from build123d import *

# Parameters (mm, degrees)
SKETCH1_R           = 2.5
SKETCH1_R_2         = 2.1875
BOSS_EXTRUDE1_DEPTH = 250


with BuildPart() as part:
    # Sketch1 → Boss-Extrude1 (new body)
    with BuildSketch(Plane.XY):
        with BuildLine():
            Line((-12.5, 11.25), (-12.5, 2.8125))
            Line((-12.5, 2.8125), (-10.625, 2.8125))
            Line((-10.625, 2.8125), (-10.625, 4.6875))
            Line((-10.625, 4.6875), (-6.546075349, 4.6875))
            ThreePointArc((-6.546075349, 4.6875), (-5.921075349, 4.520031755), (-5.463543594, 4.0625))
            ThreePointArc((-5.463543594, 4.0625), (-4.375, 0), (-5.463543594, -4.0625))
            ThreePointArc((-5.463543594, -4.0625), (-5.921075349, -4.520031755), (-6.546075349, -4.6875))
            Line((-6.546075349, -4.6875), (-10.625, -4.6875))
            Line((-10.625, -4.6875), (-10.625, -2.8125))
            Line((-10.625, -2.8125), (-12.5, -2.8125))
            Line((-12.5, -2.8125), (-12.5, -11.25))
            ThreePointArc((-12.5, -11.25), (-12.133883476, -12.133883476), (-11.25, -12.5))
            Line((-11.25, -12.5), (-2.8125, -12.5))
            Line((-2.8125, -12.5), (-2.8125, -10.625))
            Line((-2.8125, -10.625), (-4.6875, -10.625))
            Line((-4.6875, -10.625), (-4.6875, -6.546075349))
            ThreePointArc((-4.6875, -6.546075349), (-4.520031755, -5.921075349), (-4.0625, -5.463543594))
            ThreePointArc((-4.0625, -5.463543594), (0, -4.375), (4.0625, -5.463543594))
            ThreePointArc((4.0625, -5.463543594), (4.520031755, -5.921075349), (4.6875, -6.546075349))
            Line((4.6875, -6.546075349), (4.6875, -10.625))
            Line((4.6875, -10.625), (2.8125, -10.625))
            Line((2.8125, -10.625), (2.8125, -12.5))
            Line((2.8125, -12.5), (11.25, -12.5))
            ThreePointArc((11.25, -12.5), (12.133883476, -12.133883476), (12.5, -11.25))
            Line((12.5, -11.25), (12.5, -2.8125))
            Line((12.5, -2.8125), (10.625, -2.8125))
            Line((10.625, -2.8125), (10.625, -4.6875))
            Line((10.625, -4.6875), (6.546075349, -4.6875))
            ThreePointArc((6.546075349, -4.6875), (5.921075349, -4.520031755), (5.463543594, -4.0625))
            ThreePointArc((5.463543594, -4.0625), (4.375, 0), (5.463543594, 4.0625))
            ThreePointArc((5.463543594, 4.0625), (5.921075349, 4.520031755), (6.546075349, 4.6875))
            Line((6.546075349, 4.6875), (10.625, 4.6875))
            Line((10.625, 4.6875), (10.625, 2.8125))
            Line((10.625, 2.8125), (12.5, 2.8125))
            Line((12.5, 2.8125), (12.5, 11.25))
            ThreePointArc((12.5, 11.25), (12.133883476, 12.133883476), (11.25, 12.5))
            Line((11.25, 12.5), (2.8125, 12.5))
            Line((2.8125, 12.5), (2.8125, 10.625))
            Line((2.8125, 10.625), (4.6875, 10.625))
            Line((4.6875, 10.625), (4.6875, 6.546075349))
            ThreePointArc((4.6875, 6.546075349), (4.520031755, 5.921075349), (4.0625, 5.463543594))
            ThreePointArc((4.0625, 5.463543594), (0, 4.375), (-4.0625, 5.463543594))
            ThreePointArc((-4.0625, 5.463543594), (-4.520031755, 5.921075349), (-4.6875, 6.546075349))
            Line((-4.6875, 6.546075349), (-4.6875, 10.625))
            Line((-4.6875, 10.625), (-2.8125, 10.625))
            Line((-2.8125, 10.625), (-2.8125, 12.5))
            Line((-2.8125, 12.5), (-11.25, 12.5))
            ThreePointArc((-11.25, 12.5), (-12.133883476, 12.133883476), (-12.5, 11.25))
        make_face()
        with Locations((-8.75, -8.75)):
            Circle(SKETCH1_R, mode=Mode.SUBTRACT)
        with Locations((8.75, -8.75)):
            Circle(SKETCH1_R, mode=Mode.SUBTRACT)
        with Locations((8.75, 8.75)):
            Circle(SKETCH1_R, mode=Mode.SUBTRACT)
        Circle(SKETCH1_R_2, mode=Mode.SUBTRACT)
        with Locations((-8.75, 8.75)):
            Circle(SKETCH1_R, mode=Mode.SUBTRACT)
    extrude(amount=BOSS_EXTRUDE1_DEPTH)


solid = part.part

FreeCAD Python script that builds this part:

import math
import FreeCAD as App
import Part
import Sketcher
Q = App.Units.Quantity

doc = App.newDocument("Part")
body = doc.addObject("PartDesign::Body", "Body")

sketch1 = body.newObject("Sketcher::SketchObject", "Sketch")
sketch1.AttachmentSupport = (doc.getObject("XY_Plane"), [""])
sketch1.MapMode = "FlatFace"
sketch1.addGeometry([
    Part.LineSegment(App.Vector(-12.5, 11.2, 0), App.Vector(-12.5, 2.8, 0)),
    Part.LineSegment(App.Vector(-12.5, 2.8, 0), App.Vector(-10.6, 2.8, 0)),
    Part.LineSegment(App.Vector(-10.6, 2.8, 0), App.Vector(-10.6, 4.7, 0)),
    Part.LineSegment(App.Vector(-10.6, 4.7, 0), App.Vector(-6.5, 4.7, 0)),
    Part.ArcOfCircle(Part.Circle(App.Vector(-6.5, 3.4, 0), App.Vector(0, 0, 1), 1.2), math.radians(30), math.radians(90)),
    Part.ArcOfCircle(Part.Circle(App.Vector(-12.5, 0, 0), App.Vector(0, 0, 1), 8.1), math.radians(-30), math.radians(30)),
    Part.ArcOfCircle(Part.Circle(App.Vector(-6.5, -3.4, 0), App.Vector(0, 0, 1), 1.2), math.radians(-90), math.radians(-30)),
    Part.LineSegment(App.Vector(-6.5, -4.7, 0), App.Vector(-10.6, -4.7, 0)),
    Part.LineSegment(App.Vector(-10.6, -4.7, 0), App.Vector(-10.6, -2.8, 0)),
    Part.LineSegment(App.Vector(-10.6, -2.8, 0), App.Vector(-12.5, -2.8, 0)),
    Part.LineSegment(App.Vector(-12.5, -2.8, 0), App.Vector(-12.5, -11.2, 0)),
    Part.ArcOfCircle(Part.Circle(App.Vector(-11.2, -11.2, 0), App.Vector(0, 0, 1), 1.3), math.radians(-180), math.radians(-90)),
    Part.LineSegment(App.Vector(-11.2, -12.5, 0), App.Vector(-2.8, -12.5, 0)),
    Part.LineSegment(App.Vector(-2.8, -12.5, 0), App.Vector(-2.8, -10.6, 0)),
    Part.LineSegment(App.Vector(-2.8, -10.6, 0), App.Vector(-4.7, -10.6, 0)),
    Part.LineSegment(App.Vector(-4.7, -10.6, 0), App.Vector(-4.7, -6.5, 0)),
    Part.ArcOfCircle(Part.Circle(App.Vector(-3.4, -6.5, 0), App.Vector(0, 0, 1), 1.2), math.radians(120), math.radians(180)),
    Part.ArcOfCircle(Part.Circle(App.Vector(0, -12.5, 0), App.Vector(0, 0, 1), 8.1), math.radians(60), math.radians(120)),
    Part.ArcOfCircle(Part.Circle(App.Vector(3.4, -6.5, 0), App.Vector(0, 0, 1), 1.2), math.radians(0), math.radians(60)),
    Part.LineSegment(App.Vector(4.7, -6.5, 0), App.Vector(4.7, -10.6, 0)),
    Part.LineSegment(App.Vector(4.7, -10.6, 0), App.Vector(2.8, -10.6, 0)),
    Part.LineSegment(App.Vector(2.8, -10.6, 0), App.Vector(2.8, -12.5, 0)),
    Part.LineSegment(App.Vector(2.8, -12.5, 0), App.Vector(11.2, -12.5, 0)),
    Part.ArcOfCircle(Part.Circle(App.Vector(11.2, -11.2, 0), App.Vector(0, 0, 1), 1.3), math.radians(-90), math.radians(0)),
    Part.LineSegment(App.Vector(12.5, -11.2, 0), App.Vector(12.5, -2.8, 0)),
    Part.LineSegment(App.Vector(12.5, -2.8, 0), App.Vector(10.6, -2.8, 0)),
    Part.LineSegment(App.Vector(10.6, -2.8, 0), App.Vector(10.6, -4.7, 0)),
    Part.LineSegment(App.Vector(10.6, -4.7, 0), App.Vector(6.5, -4.7, 0)),
    Part.ArcOfCircle(Part.Circle(App.Vector(6.5, -3.4, 0), App.Vector(0, 0, 1), 1.2), math.radians(-150), math.radians(-90)),
    Part.ArcOfCircle(Part.Circle(App.Vector(12.5, 0, 0), App.Vector(0, 0, 1), 8.1), math.radians(150), math.radians(210)),
    Part.ArcOfCircle(Part.Circle(App.Vector(6.5, 3.4, 0), App.Vector(0, 0, 1), 1.2), math.radians(90), math.radians(150)),
    Part.LineSegment(App.Vector(6.5, 4.7, 0), App.Vector(10.6, 4.7, 0)),
    Part.LineSegment(App.Vector(10.6, 4.7, 0), App.Vector(10.6, 2.8, 0)),
    Part.LineSegment(App.Vector(10.6, 2.8, 0), App.Vector(12.5, 2.8, 0)),
    Part.LineSegment(App.Vector(12.5, 2.8, 0), App.Vector(12.5, 11.2, 0)),
    Part.ArcOfCircle(Part.Circle(App.Vector(11.2, 11.2, 0), App.Vector(0, 0, 1), 1.3), math.radians(0), math.radians(90)),
    Part.LineSegment(App.Vector(11.2, 12.5, 0), App.Vector(2.8, 12.5, 0)),
    Part.LineSegment(App.Vector(2.8, 12.5, 0), App.Vector(2.8, 10.6, 0)),
    Part.LineSegment(App.Vector(2.8, 10.6, 0), App.Vector(4.7, 10.6, 0)),
    Part.LineSegment(App.Vector(4.7, 10.6, 0), App.Vector(4.7, 6.5, 0)),
    Part.ArcOfCircle(Part.Circle(App.Vector(3.4, 6.5, 0), App.Vector(0, 0, 1), 1.2), math.radians(-60), math.radians(0)),
    Part.ArcOfCircle(Part.Circle(App.Vector(0, 12.5, 0), App.Vector(0, 0, 1), 8.1), math.radians(-120), math.radians(-60)),
    Part.ArcOfCircle(Part.Circle(App.Vector(-3.4, 6.5, 0), App.Vector(0, 0, 1), 1.2), math.radians(180), math.radians(240)),
    Part.LineSegment(App.Vector(-4.7, 6.5, 0), App.Vector(-4.7, 10.6, 0)),
    Part.LineSegment(App.Vector(-4.7, 10.6, 0), App.Vector(-2.8, 10.6, 0)),
    Part.LineSegment(App.Vector(-2.8, 10.6, 0), App.Vector(-2.8, 12.5, 0)),
    Part.LineSegment(App.Vector(-2.8, 12.5, 0), App.Vector(-11.2, 12.5, 0)),
    Part.ArcOfCircle(Part.Circle(App.Vector(-11.2, 11.2, 0), App.Vector(0, 0, 1), 1.3), math.radians(90), math.radians(180)),
    Part.Circle(App.Vector(-8.8, -8.8, 0), App.Vector(0, 0, 1), 2.5),
    Part.Circle(App.Vector(8.8, -8.8, 0), App.Vector(0, 0, 1), 2.5),
    Part.Circle(App.Vector(-8.8, 8.8, 0), App.Vector(0, 0, 1), 2.5),
    Part.Circle(App.Vector(0, 0, 0), App.Vector(0, 0, 1), 2.2),
    Part.Circle(App.Vector(8.8, 8.8, 0), App.Vector(0, 0, 1), 2.5),
], False)
sketch1.addConstraint([
    Sketcher.Constraint("Coincident", 0, 2, 1, 1),
    Sketcher.Constraint("Coincident", 1, 2, 2, 1),
    Sketcher.Constraint("Coincident", 2, 2, 3, 1),
    Sketcher.Constraint("Tangent", 3, 2, 4, 2),
    Sketcher.Constraint("Tangent", 4, 1, 5, 2),
    Sketcher.Constraint("Tangent", 5, 1, 6, 2),
    Sketcher.Constraint("Tangent", 6, 1, 7, 1),
    Sketcher.Constraint("Coincident", 7, 2, 8, 1),
    Sketcher.Constraint("Coincident", 8, 2, 9, 1),
    Sketcher.Constraint("Coincident", 9, 2, 10, 1),
    Sketcher.Constraint("Tangent", 10, 2, 11, 1),
    Sketcher.Constraint("Tangent", 11, 2, 12, 1),
    Sketcher.Constraint("Coincident", 12, 2, 13, 1),
    Sketcher.Constraint("Coincident", 13, 2, 14, 1),
    Sketcher.Constraint("Coincident", 14, 2, 15, 1),
    Sketcher.Constraint("Tangent", 15, 2, 16, 2),
    Sketcher.Constraint("Tangent", 16, 1, 17, 2),
    Sketcher.Constraint("Tangent", 17, 1, 18, 2),
    Sketcher.Constraint("Tangent", 18, 1, 19, 1),
    Sketcher.Constraint("Coincident", 19, 2, 20, 1),
    Sketcher.Constraint("Coincident", 20, 2, 21, 1),
    Sketcher.Constraint("Coincident", 21, 2, 22, 1),
    Sketcher.Constraint("Tangent", 22, 2, 23, 1),
    Sketcher.Constraint("Tangent", 23, 2, 24, 1),
    Sketcher.Constraint("Coincident", 24, 2, 25, 1),
    Sketcher.Constraint("Coincident", 25, 2, 26, 1),
    Sketcher.Constraint("Coincident", 26, 2, 27, 1),
    Sketcher.Constraint("Tangent", 27, 2, 28, 2),
    Sketcher.Constraint("Tangent", 28, 1, 29, 2),
    Sketcher.Constraint("Tangent", 29, 1, 30, 2),
    Sketcher.Constraint("Tangent", 30, 1, 31, 1),
    Sketcher.Constraint("Coincident", 31, 2, 32, 1),
    Sketcher.Constraint("Coincident", 32, 2, 33, 1),
    Sketcher.Constraint("Coincident", 33, 2, 34, 1),
    Sketcher.Constraint("Tangent", 34, 2, 35, 1),
    Sketcher.Constraint("Tangent", 35, 2, 36, 1),
    Sketcher.Constraint("Coincident", 36, 2, 37, 1),
    Sketcher.Constraint("Coincident", 37, 2, 38, 1),
    Sketcher.Constraint("Coincident", 38, 2, 39, 1),
    Sketcher.Constraint("Tangent", 39, 2, 40, 2),
    Sketcher.Constraint("Tangent", 40, 1, 41, 2),
    Sketcher.Constraint("Tangent", 41, 1, 42, 2),
    Sketcher.Constraint("Tangent", 42, 1, 43, 1),
    Sketcher.Constraint("Coincident", 43, 2, 44, 1),
    Sketcher.Constraint("Coincident", 44, 2, 45, 1),
    Sketcher.Constraint("Coincident", 45, 2, 46, 1),
    Sketcher.Constraint("Tangent", 46, 2, 47, 1),
    Sketcher.Constraint("Tangent", 47, 2, 0, 1),
    Sketcher.Constraint("Vertical", 0),
    Sketcher.Constraint("Horizontal", 1),
    Sketcher.Constraint("Vertical", 2),
    Sketcher.Constraint("Horizontal", 3),
    Sketcher.Constraint("Horizontal", 7),
    Sketcher.Constraint("Vertical", 8),
    Sketcher.Constraint("Horizontal", 9),
    Sketcher.Constraint("Vertical", 10),
    Sketcher.Constraint("Horizontal", 12),
    Sketcher.Constraint("Vertical", 13),
    Sketcher.Constraint("Horizontal", 14),
    Sketcher.Constraint("Vertical", 15),
    Sketcher.Constraint("Vertical", 19),
    Sketcher.Constraint("Horizontal", 20),
    Sketcher.Constraint("Vertical", 21),
    Sketcher.Constraint("Horizontal", 22),
    Sketcher.Constraint("Vertical", 24),
    Sketcher.Constraint("Horizontal", 25),
    Sketcher.Constraint("Vertical", 26),
    Sketcher.Constraint("Horizontal", 27),
    Sketcher.Constraint("Horizontal", 31),
    Sketcher.Constraint("Vertical", 32),
    Sketcher.Constraint("Horizontal", 33),
    Sketcher.Constraint("Vertical", 34),
    Sketcher.Constraint("Horizontal", 36),
    Sketcher.Constraint("Vertical", 37),
    Sketcher.Constraint("Horizontal", 38),
    Sketcher.Constraint("Vertical", 39),
    Sketcher.Constraint("Vertical", 43),
    Sketcher.Constraint("Horizontal", 44),
    Sketcher.Constraint("Vertical", 45),
    Sketcher.Constraint("Horizontal", 46),
    Sketcher.Constraint("Coincident", 51, 3, -1, 1),
    Sketcher.Constraint("Equal", 4, 6),
    Sketcher.Constraint("Equal", 6, 11),
    Sketcher.Constraint("Equal", 11, 16),
    Sketcher.Constraint("Equal", 5, 17),
    Sketcher.Constraint("Equal", 16, 18),
    Sketcher.Constraint("Equal", 18, 23),
    Sketcher.Constraint("Equal", 23, 28),
    Sketcher.Constraint("Equal", 17, 29),
    Sketcher.Constraint("Equal", 28, 30),
    Sketcher.Constraint("Equal", 30, 35),
    Sketcher.Constraint("Equal", 35, 40),
    Sketcher.Constraint("Equal", 29, 41),
    Sketcher.Constraint("Equal", 40, 42),
    Sketcher.Constraint("Equal", 42, 47),
    Sketcher.Constraint("Equal", 48, 49),
    Sketcher.Constraint("Equal", 49, 50),
    Sketcher.Constraint("Equal", 50, 52),
    Sketcher.Constraint("Symmetric", 4, 3, 28, 3, -1, 1),
    Sketcher.Constraint("Symmetric", 6, 3, 30, 3, -1, 1),
    Sketcher.Constraint("Symmetric", 11, 3, 35, 3, -1, 1),
    Sketcher.Constraint("Symmetric", 16, 3, 40, 3, -1, 1),
    Sketcher.Constraint("Symmetric", 18, 3, 42, 3, -1, 1),
    Sketcher.Constraint("Symmetric", 23, 3, 47, 3, -1, 1),
    Sketcher.Constraint("Symmetric", 49, 3, 50, 3, -1, 1),
    Sketcher.Constraint("Symmetric", 48, 3, 52, 3, -1, 1),
    Sketcher.Constraint("Symmetric", 1, 2, 25, 2, -1, 1),
    Sketcher.Constraint("Symmetric", 8, 2, 32, 2, -1, 1),
    Sketcher.Constraint("Symmetric", 13, 2, 37, 2, -1, 1),
    Sketcher.Constraint("Symmetric", 20, 2, 44, 2, -1, 1),
    Sketcher.Constraint("Symmetric", 16, 3, 18, 3, -2),
    Sketcher.Constraint("Symmetric", 11, 3, 23, 3, -2),
    Sketcher.Constraint("Symmetric", 6, 3, 28, 3, -2),
    Sketcher.Constraint("Symmetric", 48, 3, 49, 3, -2),
    Sketcher.Constraint("Symmetric", 13, 2, 20, 2, -2),
    Sketcher.Constraint("Symmetric", 8, 2, 25, 2, -2),
    Sketcher.Constraint("Horizontal", 17, 3, 11, 2),
    Sketcher.Constraint("Vertical", 5, 3, 0, 2),
    Sketcher.Constraint("Equal", 9, 14),
    Sketcher.Constraint("Equal", 46, 0),
    Sketcher.Constraint("Equal", 44, 2),
    Sketcher.Constraint("Equal", 8, 13),
    Sketcher.Constraint("Equal", 31, 15),
    Sketcher.Constraint("Diameter", 48, Q("5 mm")),
    Sketcher.Constraint("Radius", 4, Q("1.25 mm")),
    Sketcher.Constraint("Diameter", 51, Q("4.375 mm")),
    Sketcher.Constraint("Radius", 5, Q("8.125 mm")),
    Sketcher.Constraint("DistanceX", 5, 3, -1, 1, Q("12.5 mm")),
    Sketcher.Constraint("DistanceX", 1, 1, 1, 2, Q("1.875 mm")),
    Sketcher.Constraint("DistanceX", 48, 3, -1, 1, Q("8.75 mm")),
    Sketcher.Constraint("DistanceY", 48, 3, -1, 1, Q("8.75 mm")),
    Sketcher.Constraint("DistanceX", 12, 1, 12, 2, Q("8.4375 mm")),
])
pad1 = body.newObject("PartDesign::Pad", "Pad")
pad1.Profile = sketch1
pad1.Length = 250

doc.recompute()
